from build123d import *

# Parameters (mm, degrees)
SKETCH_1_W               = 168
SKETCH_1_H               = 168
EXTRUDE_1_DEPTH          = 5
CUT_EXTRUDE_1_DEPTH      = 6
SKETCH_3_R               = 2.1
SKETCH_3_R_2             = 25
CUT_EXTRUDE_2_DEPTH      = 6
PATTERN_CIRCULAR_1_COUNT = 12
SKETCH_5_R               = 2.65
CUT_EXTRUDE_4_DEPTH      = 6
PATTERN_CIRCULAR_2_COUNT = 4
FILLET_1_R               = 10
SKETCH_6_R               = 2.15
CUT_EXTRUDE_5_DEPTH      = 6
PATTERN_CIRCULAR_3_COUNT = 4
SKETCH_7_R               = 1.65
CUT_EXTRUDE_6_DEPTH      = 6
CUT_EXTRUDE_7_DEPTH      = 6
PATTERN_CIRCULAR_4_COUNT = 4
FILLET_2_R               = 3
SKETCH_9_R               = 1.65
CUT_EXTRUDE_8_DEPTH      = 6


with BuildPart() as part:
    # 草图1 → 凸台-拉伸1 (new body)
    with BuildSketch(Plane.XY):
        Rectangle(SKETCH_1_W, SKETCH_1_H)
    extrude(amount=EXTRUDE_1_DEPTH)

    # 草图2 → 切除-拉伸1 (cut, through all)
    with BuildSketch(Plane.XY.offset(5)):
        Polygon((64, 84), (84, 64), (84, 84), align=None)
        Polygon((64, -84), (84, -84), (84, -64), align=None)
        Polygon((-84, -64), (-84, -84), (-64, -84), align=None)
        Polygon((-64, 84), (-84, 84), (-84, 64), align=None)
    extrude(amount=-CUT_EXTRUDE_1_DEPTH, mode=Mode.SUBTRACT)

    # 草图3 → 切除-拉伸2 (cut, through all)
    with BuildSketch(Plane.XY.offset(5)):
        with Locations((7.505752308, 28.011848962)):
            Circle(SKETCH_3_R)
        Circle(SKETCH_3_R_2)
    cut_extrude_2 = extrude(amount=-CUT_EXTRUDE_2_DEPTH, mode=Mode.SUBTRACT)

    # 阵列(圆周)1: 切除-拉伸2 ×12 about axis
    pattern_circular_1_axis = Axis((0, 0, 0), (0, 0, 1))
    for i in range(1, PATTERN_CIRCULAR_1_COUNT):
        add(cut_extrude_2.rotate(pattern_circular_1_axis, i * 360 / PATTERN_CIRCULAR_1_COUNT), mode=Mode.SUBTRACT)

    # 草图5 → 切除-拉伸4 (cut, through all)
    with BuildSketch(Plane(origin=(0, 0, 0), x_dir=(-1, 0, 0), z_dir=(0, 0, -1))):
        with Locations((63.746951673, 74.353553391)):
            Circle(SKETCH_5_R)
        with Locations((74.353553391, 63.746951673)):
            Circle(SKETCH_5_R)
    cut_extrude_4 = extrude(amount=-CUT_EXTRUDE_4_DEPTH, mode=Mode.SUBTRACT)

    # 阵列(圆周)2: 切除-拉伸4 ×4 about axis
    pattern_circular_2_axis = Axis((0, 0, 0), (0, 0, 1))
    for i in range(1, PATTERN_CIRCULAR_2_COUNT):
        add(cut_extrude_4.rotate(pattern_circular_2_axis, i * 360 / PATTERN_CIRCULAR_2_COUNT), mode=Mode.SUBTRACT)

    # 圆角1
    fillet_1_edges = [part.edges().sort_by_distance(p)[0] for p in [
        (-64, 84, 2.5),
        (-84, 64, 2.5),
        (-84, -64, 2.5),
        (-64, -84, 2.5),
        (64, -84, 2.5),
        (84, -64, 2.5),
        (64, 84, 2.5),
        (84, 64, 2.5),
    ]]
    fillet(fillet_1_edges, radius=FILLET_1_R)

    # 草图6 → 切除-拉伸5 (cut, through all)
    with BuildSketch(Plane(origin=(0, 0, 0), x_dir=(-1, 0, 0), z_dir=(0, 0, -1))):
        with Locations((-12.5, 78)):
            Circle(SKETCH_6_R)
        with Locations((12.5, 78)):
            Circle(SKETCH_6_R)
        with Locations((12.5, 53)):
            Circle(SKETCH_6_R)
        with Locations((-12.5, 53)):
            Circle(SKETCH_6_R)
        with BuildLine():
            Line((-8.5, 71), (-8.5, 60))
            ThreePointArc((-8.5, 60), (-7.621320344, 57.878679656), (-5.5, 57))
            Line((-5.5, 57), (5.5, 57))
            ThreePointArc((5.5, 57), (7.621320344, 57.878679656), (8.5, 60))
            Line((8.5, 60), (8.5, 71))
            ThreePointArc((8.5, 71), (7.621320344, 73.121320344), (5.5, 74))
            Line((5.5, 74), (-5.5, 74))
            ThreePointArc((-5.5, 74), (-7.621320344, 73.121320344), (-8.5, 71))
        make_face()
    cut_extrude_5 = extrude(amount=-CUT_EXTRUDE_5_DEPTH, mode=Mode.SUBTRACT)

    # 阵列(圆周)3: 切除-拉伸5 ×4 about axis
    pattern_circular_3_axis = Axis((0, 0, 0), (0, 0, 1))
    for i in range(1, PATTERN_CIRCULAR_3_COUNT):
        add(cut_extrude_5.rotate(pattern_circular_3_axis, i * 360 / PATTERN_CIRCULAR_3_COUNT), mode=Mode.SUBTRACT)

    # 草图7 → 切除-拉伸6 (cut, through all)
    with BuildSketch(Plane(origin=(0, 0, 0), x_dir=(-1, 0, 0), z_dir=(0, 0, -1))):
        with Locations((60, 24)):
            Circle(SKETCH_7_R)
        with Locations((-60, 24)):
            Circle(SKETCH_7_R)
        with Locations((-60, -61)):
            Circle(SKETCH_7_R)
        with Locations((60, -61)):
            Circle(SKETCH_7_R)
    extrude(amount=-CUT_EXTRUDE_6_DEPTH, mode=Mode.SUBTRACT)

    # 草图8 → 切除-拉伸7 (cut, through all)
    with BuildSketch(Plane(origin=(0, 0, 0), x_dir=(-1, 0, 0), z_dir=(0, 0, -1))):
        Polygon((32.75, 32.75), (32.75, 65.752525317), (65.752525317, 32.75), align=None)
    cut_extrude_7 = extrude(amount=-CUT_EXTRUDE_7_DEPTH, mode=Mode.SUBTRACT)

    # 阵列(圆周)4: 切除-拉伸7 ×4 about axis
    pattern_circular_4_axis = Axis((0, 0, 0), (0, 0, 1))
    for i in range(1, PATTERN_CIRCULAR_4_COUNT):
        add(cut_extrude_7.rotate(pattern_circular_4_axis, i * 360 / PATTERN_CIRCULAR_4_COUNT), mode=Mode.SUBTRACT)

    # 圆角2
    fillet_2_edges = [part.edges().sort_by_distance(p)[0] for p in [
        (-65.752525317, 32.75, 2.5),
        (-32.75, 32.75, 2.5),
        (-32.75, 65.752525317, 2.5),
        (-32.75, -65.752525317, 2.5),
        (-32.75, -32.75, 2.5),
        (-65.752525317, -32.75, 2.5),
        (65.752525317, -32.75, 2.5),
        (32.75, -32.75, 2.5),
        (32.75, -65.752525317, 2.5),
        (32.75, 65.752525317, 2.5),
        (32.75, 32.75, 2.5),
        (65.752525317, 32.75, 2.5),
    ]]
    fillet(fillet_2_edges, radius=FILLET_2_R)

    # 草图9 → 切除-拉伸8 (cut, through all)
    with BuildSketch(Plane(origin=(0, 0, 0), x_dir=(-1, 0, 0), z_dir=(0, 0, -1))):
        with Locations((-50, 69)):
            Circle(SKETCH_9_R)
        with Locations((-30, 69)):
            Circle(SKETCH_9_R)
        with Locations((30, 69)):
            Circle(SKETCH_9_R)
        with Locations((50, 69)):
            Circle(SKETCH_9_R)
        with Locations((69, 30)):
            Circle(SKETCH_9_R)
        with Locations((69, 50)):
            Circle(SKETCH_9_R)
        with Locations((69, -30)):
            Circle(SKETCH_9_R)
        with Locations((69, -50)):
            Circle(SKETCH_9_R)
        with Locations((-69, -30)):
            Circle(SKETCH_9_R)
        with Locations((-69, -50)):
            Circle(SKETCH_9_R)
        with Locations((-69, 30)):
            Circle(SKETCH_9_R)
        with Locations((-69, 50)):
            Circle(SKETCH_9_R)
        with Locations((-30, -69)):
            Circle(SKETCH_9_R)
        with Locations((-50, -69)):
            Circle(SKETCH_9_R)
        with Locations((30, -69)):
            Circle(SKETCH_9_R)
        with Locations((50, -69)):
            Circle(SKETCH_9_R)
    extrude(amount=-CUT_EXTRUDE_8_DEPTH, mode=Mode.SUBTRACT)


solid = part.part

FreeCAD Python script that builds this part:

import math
import FreeCAD as App
import Part
import Sketcher
from FreeCAD import Vector
Q = App.Units.Quantity


def edges_at(feature, points):
    """Names of the edges that pass closest to the given points."""
    edges = feature.Shape.Edges
    near = lambda p: min(range(len(edges)), key=lambda i: edges[i].distToShape(Part.Vertex(*p))[0])
    return sorted({f"Edge{near(p) + 1}" for p in points})

doc = App.newDocument("Part")
body = doc.addObject("PartDesign::Body", "Body")

sketch1 = body.newObject("Sketcher::SketchObject", "Sketch")
sketch1.AttachmentSupport = (doc.getObject("XY_Plane"), [""])
sketch1.MapMode = "FlatFace"
sketch1.addGeometry([
    Part.LineSegment(Vector(-84, 84, 0), Vector(-84, -84, 0)),
    Part.LineSegment(Vector(-84, -84, 0), Vector(84, -84, 0)),
    Part.LineSegment(Vector(84, -84, 0), Vector(84, 84, 0)),
    Part.LineSegment(Vector(84, 84, 0), Vector(-84, 84, 0)),
], False)
sketch1.addConstraint([
    Sketcher.Constraint("Coincident", 0, 2, 1, 1),
    Sketcher.Constraint("Coincident", 1, 2, 2, 1),
    Sketcher.Constraint("Coincident", 2, 2, 3, 1),
    Sketcher.Constraint("Coincident", 3, 2, 0, 1),
    Sketcher.Constraint("Vertical", 0),
    Sketcher.Constraint("Horizontal", 1),
    Sketcher.Constraint("Vertical", 2),
    Sketcher.Constraint("Horizontal", 3),
    Sketcher.Constraint("Symmetric", 0, 2, 2, 2, -1, 1),
    Sketcher.Constraint("Equal", 3, 0),
    Sketcher.Constraint("DistanceX", 1, 1, 1, 2, Q("168 mm")),
])
pad1 = body.newObject("PartDesign::Pad", "Pad")
pad1.Profile = sketch1
pad1.Length = 5

sketch2 = body.newObject("Sketcher::SketchObject", "Sketch001")
sketch2.AttachmentSupport = (doc.getObject("XY_Plane"), [""])
sketch2.MapMode = "FlatFace"
sketch2.AttachmentOffset = App.Placement(Vector(0, 0, 5), App.Rotation())
sketch2.addGeometry([
    Part.LineSegment(Vector(64, 84, 0), Vector(84, 64, 0)),
    Part.LineSegment(Vector(84, 64, 0), Vector(84, 84, 0)),
    Part.LineSegment(Vector(84, 84, 0), Vector(64, 84, 0)),
    Part.LineSegment(Vector(64, -84, 0), Vector(84, -84, 0)),
    Part.LineSegment(Vector(84, -84, 0), Vector(84, -64, 0)),
    Part.LineSegment(Vector(84, -64, 0), Vector(64, -84, 0)),
    Part.LineSegment(Vector(-84, -64, 0), Vector(-84, -84, 0)),
    Part.LineSegment(Vector(-84, -84, 0), Vector(-64, -84, 0)),
    Part.LineSegment(Vector(-64, -84, 0), Vector(-84, -64, 0)),
    Part.LineSegment(Vector(-64, 84, 0), Vector(-84, 84, 0)),
    Part.LineSegment(Vector(-84, 84, 0), Vector(-84, 64, 0)),
    Part.LineSegment(Vector(-84, 64, 0), Vector(-64, 84, 0)),
], False)
sketch2.addConstraint([
    Sketcher.Constraint("Coincident", 0, 2, 1, 1),
    Sketcher.Constraint("Coincident", 1, 2, 2, 1),
    Sketcher.Constraint("Coincident", 2, 2, 0, 1),
    Sketcher.Constraint("Coincident", 3, 2, 4, 1),
    Sketcher.Constraint("Coincident", 4, 2, 5, 1),
    Sketcher.Constraint("Coincident", 5, 2, 3, 1),
    Sketcher.Constraint("Coincident", 6, 2, 7, 1),
    Sketcher.Constraint("Coincident", 7, 2, 8, 1),
    Sketcher.Constraint("Coincident", 8, 2, 6, 1),
    Sketcher.Constraint("Coincident", 9, 2, 10, 1),
    Sketcher.Constraint("Coincident", 10, 2, 11, 1),
    Sketcher.Constraint("Coincident", 11, 2, 9, 1),
    Sketcher.Constraint("Vertical", 1),
    Sketcher.Constraint("Horizontal", 2),
    Sketcher.Constraint("Horizontal", 3),
    Sketcher.Constraint("Vertical", 4),
    Sketcher.Constraint("Vertical", 6),
    Sketcher.Constraint("Horizontal", 7),
    Sketcher.Constraint("Horizontal", 9),
    Sketcher.Constraint("Vertical", 10),
    Sketcher.Constraint("Symmetric", 1, 2, 6, 2, -1, 1),
    Sketcher.Constraint("Symmetric", 3, 2, 9, 2, -1, 1),
    Sketcher.Constraint("Symmetric", 3, 2, 6, 2, -2),
    Sketcher.Constraint("Perpendicular", 0, 5),
    Sketcher.Constraint("Perpendicular", 5, 8),
    Sketcher.Constraint("Perpendicular", 8, 11),
    Sketcher.Constraint("Horizontal", 4, 2, 8, 2),
    Sketcher.Constraint("Horizontal", 0, 2, 10, 2),
    Sketcher.Constraint("Vertical", 2, 2, 5, 2),
    Sketcher.Constraint("Vertical", 7, 2, 11, 2),
    Sketcher.Constraint("DistanceX", 2, 2, 2, 1, Q("20 mm")),
    Sketcher.Constraint("DistanceX", -1, 1, 0, 2, Q("84 mm")),
    Sketcher.Constraint("DistanceY", -1, 1, 0, 2, Q("64 mm")),
])
pocket1 = body.newObject("PartDesign::Pocket", "Pocket")
pocket1.Profile = sketch2
pocket1.Type = "ThroughAll"

sketch3 = body.newObject("Sketcher::SketchObject", "Sketch002")
sketch3.AttachmentSupport = (doc.getObject("XY_Plane"), [""])
sketch3.MapMode = "FlatFace"
sketch3.AttachmentOffset = App.Placement(Vector(0, 0, 5), App.Rotation())
sketch3.addGeometry([
    Part.Circle(Vector(7.5, 28, 0), Vector(0, 0, 1), 2.1),
    Part.Circle(Vector(0, 0, 0), Vector(0, 0, 1), 25),
], False)
sketch3.addConstraint([
    Sketcher.Constraint("Coincident", 1, 3, -1, 1),
    Sketcher.Constraint("Diameter", 1, Q("50 mm")),
    Sketcher.Constraint("Diameter", 0, Q("4.2 mm")),
    Sketcher.Constraint("DistanceY", -1, 1, 0, 3, Q("28.011849 mm")),
    Sketcher.Constraint("DistanceX", -1, 1, 0, 3, Q("7.505752 mm")),
])
pocket2 = body.newObject("PartDesign::Pocket", "Pocket001")
pocket2.Profile = sketch3
pocket2.Type = "ThroughAll"
doc.recompute()

polarpattern = body.newObject("PartDesign::PolarPattern", "PolarPattern")
polarpattern.Originals = [pocket2]
polarpattern.Axis = (doc.getObject("Z_Axis"), [""])
polarpattern.Angle = 360
polarpattern.Occurrences = 12
body.Tip = polarpattern

sketch4 = body.newObject("Sketcher::SketchObject", "Sketch003")
sketch4.AttachmentSupport = (doc.getObject("XY_Plane"), [""])
sketch4.MapMode = "FlatFace"
sketch4.addGeometry([
    Part.Circle(Vector(-63.7, 74.4, 0), Vector(0, 0, 1), 2.6),
    Part.Circle(Vector(-74.4, 63.7, 0), Vector(0, 0, 1), 2.6),
], False)
sketch4.addConstraint([
    Sketcher.Constraint("Equal", 0, 1),
    Sketcher.Constraint("Diameter", 0, Q("5.3 mm")),
    Sketcher.Constraint("DistanceX", 1, 3, 0, 3, Q("10.606602 mm")),
    Sketcher.Constraint("DistanceY", 1, 3, 0, 3, Q("10.606602 mm")),
    Sketcher.Constraint("DistanceX", 0, 3, -1, 1, Q("63.746952 mm")),
    Sketcher.Constraint("DistanceY", -1, 1, 1, 3, Q("63.746952 mm")),
])
pocket3 = body.newObject("PartDesign::Pocket", "Pocket002")
pocket3.Profile = sketch4
pocket3.Type = "ThroughAll"
pocket3.Reversed = True
doc.recompute()

polarpattern2 = body.newObject("PartDesign::PolarPattern", "PolarPattern001")
polarpattern2.Originals = [pocket3]
polarpattern2.Axis = (doc.getObject("Z_Axis"), [""])
polarpattern2.Angle = 360
polarpattern2.Occurrences = 4
body.Tip = polarpattern2
doc.recompute()

fillet = body.newObject("PartDesign::Fillet", "Fillet")
fillet.Base = (polarpattern2, edges_at(polarpattern2, [
    (-64, 84, 2.5),
    (-84, 64, 2.5),
    (-84, -64, 2.5),
    (-64, -84, 2.5),
    (64, -84, 2.5),
    (84, -64, 2.5),
    (64, 84, 2.5),
    (84, 64, 2.5),
]))
fillet.Radius = 10

sketch5 = body.newObject("Sketcher::SketchObject", "Sketch004")
sketch5.AttachmentSupport = (doc.getObject("XY_Plane"), [""])
sketch5.MapMode = "FlatFace"
sketch5.addGeometry([
    Part.Circle(Vector(12.5, 78, 0), Vector(0, 0, 1), 2.1),
    Part.Circle(Vector(-12.5, 78, 0), Vector(0, 0, 1), 2.1),
    Part.Circle(Vector(-12.5, 53, 0), Vector(0, 0, 1), 2.1),
    Part.Circle(Vector(12.5, 53, 0), Vector(0, 0, 1), 2.1),
    Part.LineSegment(Vector(8.5, 71, 0), Vector(8.5, 60, 0)),
    Part.ArcOfCircle(Part.Circle(Vector(5.5, 60, 0), Vector(0, 0, 1), 3), math.radians(-90), math.radians(0)),
    Part.LineSegment(Vector(5.5, 57, 0), Vector(-5.5, 57, 0)),
    Part.ArcOfCircle(Part.Circle(Vector(-5.5, 60, 0), Vector(0, 0, 1), 3), math.radians(180), math.radians(270)),
    Part.LineSegment(Vector(-8.5, 60, 0), Vector(-8.5, 71, 0)),
    Part.ArcOfCircle(Part.Circle(Vector(-5.5, 71, 0), Vector(0, 0, 1), 3), math.radians(90), math.radians(180)),
    Part.LineSegment(Vector(-5.5, 74, 0), Vector(5.5, 74, 0)),
    Part.ArcOfCircle(Part.Circle(Vector(5.5, 71, 0), Vector(0, 0, 1), 3), math.radians(0), math.radians(90)),
], False)
sketch5.addConstraint([
    Sketcher.Constraint("Tangent", 4, 2, 5, 2),
    Sketcher.Constraint("Tangent", 5, 1, 6, 1),
    Sketcher.Constraint("Tangent", 6, 2, 7, 2),
    Sketcher.Constraint("Tangent", 7, 1, 8, 1),
    Sketcher.Constraint("Tangent", 8, 2, 9, 2),
    Sketcher.Constraint("Tangent", 9, 1, 10, 1),
    Sketcher.Constraint("Tangent", 10, 2, 11, 2),
    Sketcher.Constraint("Tangent", 11, 1, 4, 1),
    Sketcher.Constraint("Vertical", 4),
    Sketcher.Constraint("Horizontal", 6),
    Sketcher.Constraint("Vertical", 8),
    Sketcher.Constraint("Horizontal", 10),
    Sketcher.Constraint("Equal", 0, 1),
    Sketcher.Constraint("Equal", 1, 2),
    Sketcher.Constraint("Equal", 2, 3),
    Sketcher.Constraint("Equal", 5, 7),
    Sketcher.Constraint("Equal", 7, 9),
    Sketcher.Constraint("Equal", 9, 11),
    Sketcher.Constraint("Symmetric", 0, 3, 1, 3, -2),
    Sketcher.Constraint("Symmetric", 2, 3, 3, 3, -2),
    Sketcher.Constraint("Vertical", 1, 3, 2, 3),
    Sketcher.Constraint("Equal", 10, 4),
    Sketcher.Constraint("Radius", 5, Q("3 mm")),
    Sketcher.Constraint("Diameter", 0, Q("4.3 mm")),
    Sketcher.Constraint("DistanceX", 6, 2, 6, 1, Q("11 mm")),
    Sketcher.Constraint("DistanceY", -1, 1, 0, 3, Q("78 mm")),
    Sketcher.Constraint("DistanceY", -1, 1, 2, 3, Q("53 mm")),
    Sketcher.Constraint("DistanceY", -1, 1, 5, 3, Q("60 mm")),
    Sketcher.Constraint("DistanceX", 1, 3, 0, 3, Q("25 mm")),
    Sketcher.Constraint("DistanceX", 5, 3, 3, 3, Q("7 mm")),
])
pocket4 = body.newObject("PartDesign::Pocket", "Pocket003")
pocket4.Profile = sketch5
pocket4.Type = "ThroughAll"
pocket4.Reversed = True
doc.recompute()

polarpattern3 = body.newObject("PartDesign::PolarPattern", "PolarPattern002")
polarpattern3.Originals = [pocket4]
polarpattern3.Axis = (doc.getObject("Z_Axis"), [""])
polarpattern3.Angle = 360
polarpattern3.Occurrences = 4
body.Tip = polarpattern3

sketch6 = body.newObject("Sketcher::SketchObject", "Sketch005")
sketch6.AttachmentSupport = (doc.getObject("XY_Plane"), [""])
sketch6.MapMode = "FlatFace"
sketch6.addGeometry([
    Part.Circle(Vector(-60, 24, 0), Vector(0, 0, 1), 1.6),
    Part.Circle(Vector(60, 24, 0), Vector(0, 0, 1), 1.6),
    Part.Circle(Vector(60, -61, 0), Vector(0, 0, 1), 1.6),
    Part.Circle(Vector(-60, -61, 0), Vector(0, 0, 1), 1.6),
], False)
sketch6.addConstraint([
    Sketcher.Constraint("Equal", 0, 1),
    Sketcher.Constraint("Equal", 1, 2),
    Sketcher.Constraint("Equal", 2, 3),
    Sketcher.Constraint("Symmetric", 0, 3, 1, 3, -2),
    Sketcher.Constraint("Symmetric", 2, 3, 3, 3, -2),
    Sketcher.Constraint("Vertical", 1, 3, 2, 3),
    Sketcher.Constraint("Diameter", 0, Q("3.3 mm")),
    Sketcher.Constraint("DistanceX", 0, 3, -1, 1, Q("60 mm")),
    Sketcher.Constraint("DistanceY", -1, 1, 0, 3, Q("24 mm")),
    Sketcher.Constraint("DistanceY", 2, 3, -1, 1, Q("61 mm")),
])
pocket5 = body.newObject("PartDesign::Pocket", "Pocket004")
pocket5.Profile = sketch6
pocket5.Type = "ThroughAll"
pocket5.Reversed = True

sketch7 = body.newObject("Sketcher::SketchObject", "Sketch006")
sketch7.AttachmentSupport = (doc.getObject("XY_Plane"), [""])
sketch7.MapMode = "FlatFace"
sketch7.addGeometry([
    Part.LineSegment(Vector(-33, 66, 0), Vector(-33, 33, 0)),
    Part.LineSegment(Vector(-33, 33, 0), Vector(-66, 33, 0)),
    Part.LineSegment(Vector(-66, 33, 0), Vector(-33, 66, 0)),
], False)
sketch7.addConstraint([
    Sketcher.Constraint("Coincident", 0, 2, 1, 1),
    Sketcher.Constraint("Coincident", 1, 2, 2, 1),
    Sketcher.Constraint("Coincident", 2, 2, 0, 1),
    Sketcher.Constraint("Vertical", 0),
    Sketcher.Constraint("Horizontal", 1),
    Sketcher.Constraint("Equal", 1, 0),
    Sketcher.Constraint("DistanceX", 0, 2, -1, 1, Q("32.75 mm")),
    Sketcher.Constraint("DistanceY", -1, 1, 0, 2, Q("32.75 mm")),
    Sketcher.Constraint("Distance", 2, Q("46.672619 mm")),
])
pocket6 = body.newObject("PartDesign::Pocket", "Pocket005")
pocket6.Profile = sketch7
pocket6.Type = "ThroughAll"
pocket6.Reversed = True
doc.recompute()

polarpattern4 = body.newObject("PartDesign::PolarPattern", "PolarPattern003")
polarpattern4.Originals = [pocket6]
polarpattern4.Axis = (doc.getObject("Z_Axis"), [""])
polarpattern4.Angle = 360
polarpattern4.Occurrences = 4
body.Tip = polarpattern4
doc.recompute()

fillet2 = body.newObject("PartDesign::Fillet", "Fillet001")
fillet2.Base = (polarpattern4, edges_at(polarpattern4, [
    (-65.753, 32.75, 2.5),
    (-32.75, 32.75, 2.5),
    (-32.75, 65.753, 2.5),
    (-32.75, -65.753, 2.5),
    (-32.75, -32.75, 2.5),
    (-65.753, -32.75, 2.5),
    (65.753, -32.75, 2.5),
    (32.75, -32.75, 2.5),
    (32.75, -65.753, 2.5),
    (32.75, 65.753, 2.5),
    (32.75, 32.75, 2.5),
    (65.753, 32.75, 2.5),
]))
fillet2.Radius = 3

sketch8 = body.newObject("Sketcher::SketchObject", "Sketch007")
sketch8.AttachmentSupport = (doc.getObject("XY_Plane"), [""])
sketch8.MapMode = "FlatFace"
sketch8.addGeometry([
    Part.Circle(Vector(50, 69, 0), Vector(0, 0, 1), 1.6),
    Part.Circle(Vector(30, 69, 0), Vector(0, 0, 1), 1.6),
    Part.Circle(Vector(-30, 69, 0), Vector(0, 0, 1), 1.6),
    Part.Circle(Vector(-50, 69, 0), Vector(0, 0, 1), 1.6),
    Part.Circle(Vector(-69, 30, 0), Vector(0, 0, 1), 1.6),
    Part.Circle(Vector(-69, 50, 0), Vector(0, 0, 1), 1.6),
    Part.Circle(Vector(-69, -30, 0), Vector(0, 0, 1), 1.6),
    Part.Circle(Vector(-69, -50, 0), Vector(0, 0, 1), 1.6),
    Part.Circle(Vector(69, -30, 0), Vector(0, 0, 1), 1.6),
    Part.Circle(Vector(69, -50, 0), Vector(0, 0, 1), 1.6),
    Part.Circle(Vector(69, 30, 0), Vector(0, 0, 1), 1.6),
    Part.Circle(Vector(69, 50, 0), Vector(0, 0, 1), 1.6),
    Part.Circle(Vector(30, -69, 0), Vector(0, 0, 1), 1.6),
    Part.Circle(Vector(50, -69, 0), Vector(0, 0, 1), 1.6),
    Part.Circle(Vector(-30, -69, 0), Vector(0, 0, 1), 1.6),
    Part.Circle(Vector(-50, -69, 0), Vector(0, 0, 1), 1.6),
], False)
sketch8.addConstraint([
    Sketcher.Constraint("Equal", 0, 1),
    Sketcher.Constraint("Equal", 1, 2),
    Sketcher.Constraint("Equal", 2, 3),
    Sketcher.Constraint("Equal", 3, 4),
    Sketcher.Constraint("Equal", 4, 5),
    Sketcher.Constraint("Equal", 5, 6),
    Sketcher.Constraint("Equal", 6, 7),
    Sketcher.Constraint("Equal", 7, 8),
    Sketcher.Constraint("Equal", 8, 9),
    Sketcher.Constraint("Equal", 9, 10),
    Sketcher.Constraint("Equal", 10, 11),
    Sketcher.Constraint("Equal", 11, 12),
    Sketcher.Constraint("Equal", 12, 13),
    Sketcher.Constraint("Equal", 13, 14),
    Sketcher.Constraint("Equal", 14, 15),
    Sketcher.Constraint("Symmetric", 4, 3, 8, 3, -1, 1),
    Sketcher.Constraint("Symmetric", 5, 3, 9, 3, -1, 1),
    Sketcher.Constraint("Symmetric", 6, 3, 10, 3, -1, 1),
    Sketcher.Constraint("Symmetric", 7, 3, 11, 3, -1, 1),
    Sketcher.Constraint("Symmetric", 2, 3, 12, 3, -1, 1),
    Sketcher.Constraint("Symmetric", 3, 3, 13, 3, -1, 1),
    Sketcher.Constraint("Symmetric", 1, 3, 14, 3, -1, 1),
    Sketcher.Constraint("Symmetric", 0, 3, 15, 3, -1, 1),
    Sketcher.Constraint("Symmetric", 1, 3, 2, 3, -2),
    Sketcher.Constraint("Symmetric", 0, 3, 3, 3, -2),
    Sketcher.Constraint("Symmetric", 6, 3, 8, 3, -2),
    Sketcher.Constraint("Symmetric", 7, 3, 9, 3, -2),
    Sketcher.Constraint("Horizontal", 0, 3, 1, 3),
    Sketcher.Constraint("Vertical", 4, 3, 5, 3),
    Sketcher.Constraint("Diameter", 0, Q("3.3 mm")),
    Sketcher.Constraint("DistanceX", -1, 1, 0, 3, Q("50 mm")),
    Sketcher.Constraint("DistanceY", -1, 1, 0, 3, Q("69 mm")),
    Sketcher.Constraint("DistanceX", -1, 1, 1, 3, Q("30 mm")),
    Sketcher.Constraint("DistanceX", 4, 3, -1, 1, Q("69 mm")),
    Sketcher.Constraint("DistanceY", -1, 1, 4, 3, Q("30 mm")),
    Sketcher.Constraint("DistanceY", -1, 1, 5, 3, Q("50 mm")),
])
pocket7 = body.newObject("PartDesign::Pocket", "Pocket006")
pocket7.Profile = sketch8
pocket7.Type = "ThroughAll"
pocket7.Reversed = True

doc.recompute()
